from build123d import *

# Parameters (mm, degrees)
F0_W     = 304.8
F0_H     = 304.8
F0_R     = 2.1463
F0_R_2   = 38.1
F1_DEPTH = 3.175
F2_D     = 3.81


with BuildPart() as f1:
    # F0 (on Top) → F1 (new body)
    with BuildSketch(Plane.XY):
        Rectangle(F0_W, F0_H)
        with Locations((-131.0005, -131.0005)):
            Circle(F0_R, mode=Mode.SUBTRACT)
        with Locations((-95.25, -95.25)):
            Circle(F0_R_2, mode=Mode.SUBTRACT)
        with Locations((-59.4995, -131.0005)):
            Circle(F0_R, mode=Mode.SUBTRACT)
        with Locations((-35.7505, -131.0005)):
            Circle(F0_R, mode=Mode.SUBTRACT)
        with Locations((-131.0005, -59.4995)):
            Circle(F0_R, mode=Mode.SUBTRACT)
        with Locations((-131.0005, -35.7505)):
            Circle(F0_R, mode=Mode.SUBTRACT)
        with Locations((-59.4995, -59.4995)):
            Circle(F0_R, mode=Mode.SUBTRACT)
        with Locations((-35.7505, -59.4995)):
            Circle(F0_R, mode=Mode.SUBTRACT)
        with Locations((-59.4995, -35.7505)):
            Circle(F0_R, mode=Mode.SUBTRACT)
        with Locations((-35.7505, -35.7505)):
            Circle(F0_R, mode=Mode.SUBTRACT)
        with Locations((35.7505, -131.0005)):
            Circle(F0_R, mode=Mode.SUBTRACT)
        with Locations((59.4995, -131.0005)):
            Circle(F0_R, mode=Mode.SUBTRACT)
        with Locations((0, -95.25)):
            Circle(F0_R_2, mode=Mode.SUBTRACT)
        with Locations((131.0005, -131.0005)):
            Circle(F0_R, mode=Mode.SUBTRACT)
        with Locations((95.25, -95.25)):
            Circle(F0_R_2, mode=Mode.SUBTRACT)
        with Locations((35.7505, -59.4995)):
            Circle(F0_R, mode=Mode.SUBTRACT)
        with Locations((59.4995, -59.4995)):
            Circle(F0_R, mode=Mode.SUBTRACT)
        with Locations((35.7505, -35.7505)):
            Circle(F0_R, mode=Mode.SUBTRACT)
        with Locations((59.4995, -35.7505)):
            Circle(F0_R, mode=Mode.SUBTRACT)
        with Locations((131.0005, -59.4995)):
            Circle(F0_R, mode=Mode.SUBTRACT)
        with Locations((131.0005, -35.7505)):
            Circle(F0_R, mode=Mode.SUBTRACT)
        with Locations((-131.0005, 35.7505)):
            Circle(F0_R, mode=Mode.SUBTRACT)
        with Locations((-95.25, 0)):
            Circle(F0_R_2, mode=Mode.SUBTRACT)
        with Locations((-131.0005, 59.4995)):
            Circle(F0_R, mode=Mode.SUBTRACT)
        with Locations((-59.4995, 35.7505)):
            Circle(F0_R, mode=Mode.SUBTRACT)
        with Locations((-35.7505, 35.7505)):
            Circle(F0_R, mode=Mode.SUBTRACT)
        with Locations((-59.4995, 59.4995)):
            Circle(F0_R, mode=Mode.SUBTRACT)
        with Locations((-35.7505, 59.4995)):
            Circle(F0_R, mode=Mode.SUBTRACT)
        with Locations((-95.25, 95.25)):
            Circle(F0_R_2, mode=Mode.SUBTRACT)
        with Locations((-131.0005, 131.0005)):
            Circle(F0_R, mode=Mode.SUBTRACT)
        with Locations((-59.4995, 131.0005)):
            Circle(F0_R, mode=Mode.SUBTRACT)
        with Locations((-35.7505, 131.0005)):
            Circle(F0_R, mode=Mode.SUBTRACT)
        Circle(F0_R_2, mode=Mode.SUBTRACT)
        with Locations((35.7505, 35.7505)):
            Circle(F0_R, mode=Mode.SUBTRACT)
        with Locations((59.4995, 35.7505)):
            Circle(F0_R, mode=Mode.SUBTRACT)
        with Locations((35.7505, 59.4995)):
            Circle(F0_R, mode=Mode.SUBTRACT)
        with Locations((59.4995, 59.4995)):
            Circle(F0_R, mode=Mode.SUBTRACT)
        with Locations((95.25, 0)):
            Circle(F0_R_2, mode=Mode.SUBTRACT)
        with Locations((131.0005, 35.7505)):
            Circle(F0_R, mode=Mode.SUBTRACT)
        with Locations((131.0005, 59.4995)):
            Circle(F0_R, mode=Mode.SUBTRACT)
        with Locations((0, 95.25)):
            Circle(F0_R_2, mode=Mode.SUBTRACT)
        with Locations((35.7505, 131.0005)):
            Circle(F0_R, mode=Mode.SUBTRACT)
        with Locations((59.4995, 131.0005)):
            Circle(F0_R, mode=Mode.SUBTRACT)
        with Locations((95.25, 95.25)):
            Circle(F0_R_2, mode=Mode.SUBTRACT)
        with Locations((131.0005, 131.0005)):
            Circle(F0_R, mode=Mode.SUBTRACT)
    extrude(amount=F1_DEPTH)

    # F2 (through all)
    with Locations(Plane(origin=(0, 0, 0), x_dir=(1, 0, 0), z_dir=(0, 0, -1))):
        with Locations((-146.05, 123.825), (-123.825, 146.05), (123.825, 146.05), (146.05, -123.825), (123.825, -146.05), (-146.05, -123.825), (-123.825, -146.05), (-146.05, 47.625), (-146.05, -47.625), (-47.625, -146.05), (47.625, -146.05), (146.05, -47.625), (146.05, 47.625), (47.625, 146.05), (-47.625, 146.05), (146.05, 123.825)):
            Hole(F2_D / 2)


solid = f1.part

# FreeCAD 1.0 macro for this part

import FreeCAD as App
import Part
import Sketcher
from FreeCAD import Vector
Q = App.Units.Quantity


def add_polygon(sketch, points):
    """Adds a closed chain of lines whose ends are joined by coincident constraints."""
    first, n = sketch.GeometryCount, len(points)
    for a, b in zip(points, points[1:] + points[:1]):
        sketch.addGeometry(Part.LineSegment(App.Vector(*a, 0), App.Vector(*b, 0)), False)
    for i in range(n):
        sketch.addConstraint(Sketcher.Constraint("Coincident", first + i, 2, first + (i + 1) % n, 1))

doc = App.newDocument("Part")
body = doc.addObject("PartDesign::Body", "Body")

# Sketch on XY plane
sketch1 = body.newObject("Sketcher::SketchObject", "Sketch")
sketch1.AttachmentSupport = (doc.getObject("XY_Plane"), [""])
sketch1.MapMode = "FlatFace"
add_polygon(sketch1, [(-152.4, 152.4), (-152.4, -152.4), (152.4, -152.4), (152.4, 152.4)])  # lines 0-3
sketch1.addGeometry(Part.Circle(Vector(-131, -131, 0), Vector(0, 0, 1), 2.1), False)  # 4
sketch1.addGeometry(Part.Circle(Vector(-95.2, -95.2, 0), Vector(0, 0, 1), 38.1), False)  # 5
sketch1.addGeometry(Part.Circle(Vector(-59.5, -131, 0), Vector(0, 0, 1), 2.1), False)  # 6
sketch1.addGeometry(Part.Circle(Vector(-35.8, -131, 0), Vector(0, 0, 1), 2.1), False)  # 7
sketch1.addGeometry(Part.Circle(Vector(-131, -59.5, 0), Vector(0, 0, 1), 2.1), False)  # 8
sketch1.addGeometry(Part.Circle(Vector(-131, -35.8, 0), Vector(0, 0, 1), 2.1), False)  # 9
sketch1.addGeometry(Part.Circle(Vector(-59.5, -59.5, 0), Vector(0, 0, 1), 2.1), False)  # 10
sketch1.addGeometry(Part.Circle(Vector(-35.8, -59.5, 0), Vector(0, 0, 1), 2.1), False)  # 11
sketch1.addGeometry(Part.Circle(Vector(-59.5, -35.8, 0), Vector(0, 0, 1), 2.1), False)  # 12
sketch1.addGeometry(Part.Circle(Vector(-35.8, -35.8, 0), Vector(0, 0, 1), 2.1), False)  # 13
sketch1.addGeometry(Part.Circle(Vector(35.8, -131, 0), Vector(0, 0, 1), 2.1), False)  # 14
sketch1.addGeometry(Part.Circle(Vector(59.5, -131, 0), Vector(0, 0, 1), 2.1), False)  # 15
sketch1.addGeometry(Part.Circle(Vector(0, -95.2, 0), Vector(0, 0, 1), 38.1), False)  # 16
sketch1.addGeometry(Part.Circle(Vector(131, -131, 0), Vector(0, 0, 1), 2.1), False)  # 17
sketch1.addGeometry(Part.Circle(Vector(95.2, -95.2, 0), Vector(0, 0, 1), 38.1), False)  # 18
sketch1.addGeometry(Part.Circle(Vector(35.8, -59.5, 0), Vector(0, 0, 1), 2.1), False)  # 19
sketch1.addGeometry(Part.Circle(Vector(59.5, -59.5, 0), Vector(0, 0, 1), 2.1), False)  # 20
sketch1.addGeometry(Part.Circle(Vector(35.8, -35.8, 0), Vector(0, 0, 1), 2.1), False)  # 21
sketch1.addGeometry(Part.Circle(Vector(59.5, -35.8, 0), Vector(0, 0, 1), 2.1), False)  # 22
sketch1.addGeometry(Part.Circle(Vector(131, -59.5, 0), Vector(0, 0, 1), 2.1), False)  # 23
sketch1.addGeometry(Part.Circle(Vector(131, -35.8, 0), Vector(0, 0, 1), 2.1), False)  # 24
sketch1.addGeometry(Part.Circle(Vector(-95.2, 0, 0), Vector(0, 0, 1), 38.1), False)  # 25
sketch1.addGeometry(Part.Circle(Vector(-131, 35.8, 0), Vector(0, 0, 1), 2.1), False)  # 26
sketch1.addGeometry(Part.Circle(Vector(-131, 59.5, 0), Vector(0, 0, 1), 2.1), False)  # 27
sketch1.addGeometry(Part.Circle(Vector(-59.5, 35.8, 0), Vector(0, 0, 1), 2.1), False)  # 28
sketch1.addGeometry(Part.Circle(Vector(-35.8, 35.8, 0), Vector(0, 0, 1), 2.1), False)  # 29
sketch1.addGeometry(Part.Circle(Vector(-59.5, 59.5, 0), Vector(0, 0, 1), 2.1), False)  # 30
sketch1.addGeometry(Part.Circle(Vector(-35.8, 59.5, 0), Vector(0, 0, 1), 2.1), False)  # 31
sketch1.addGeometry(Part.Circle(Vector(-95.2, 95.2, 0), Vector(0, 0, 1), 38.1), False)  # 32
sketch1.addGeometry(Part.Circle(Vector(-131, 131, 0), Vector(0, 0, 1), 2.1), False)  # 33
sketch1.addGeometry(Part.Circle(Vector(-59.5, 131, 0), Vector(0, 0, 1), 2.1), False)  # 34
sketch1.addGeometry(Part.Circle(Vector(-35.8, 131, 0), Vector(0, 0, 1), 2.1), False)  # 35
sketch1.addGeometry(Part.Circle(Vector(0, 0, 0), Vector(0, 0, 1), 38.1), False)  # 36
sketch1.addGeometry(Part.Circle(Vector(35.8, 35.8, 0), Vector(0, 0, 1), 2.1), False)  # 37
sketch1.addGeometry(Part.Circle(Vector(59.5, 35.8, 0), Vector(0, 0, 1), 2.1), False)  # 38
sketch1.addGeometry(Part.Circle(Vector(35.8, 59.5, 0), Vector(0, 0, 1), 2.1), False)  # 39
sketch1.addGeometry(Part.Circle(Vector(59.5, 59.5, 0), Vector(0, 0, 1), 2.1), False)  # 40
sketch1.addGeometry(Part.Circle(Vector(95.2, 0, 0), Vector(0, 0, 1), 38.1), False)  # 41
sketch1.addGeometry(Part.Circle(Vector(131, 35.8, 0), Vector(0, 0, 1), 2.1), False)  # 42
sketch1.addGeometry(Part.Circle(Vector(131, 59.5, 0), Vector(0, 0, 1), 2.1), False)  # 43
sketch1.addGeometry(Part.Circle(Vector(0, 95.2, 0), Vector(0, 0, 1), 38.1), False)  # 44
sketch1.addGeometry(Part.Circle(Vector(35.8, 131, 0), Vector(0, 0, 1), 2.1), False)  # 45
sketch1.addGeometry(Part.Circle(Vector(59.5, 131, 0), Vector(0, 0, 1), 2.1), False)  # 46
sketch1.addGeometry(Part.Circle(Vector(95.2, 95.2, 0), Vector(0, 0, 1), 38.1), False)  # 47
sketch1.addGeometry(Part.Circle(Vector(131, 131, 0), Vector(0, 0, 1), 2.1), False)  # 48
sketch1.addConstraint([
    Sketcher.Constraint("Vertical", 0),
    Sketcher.Constraint("Horizontal", 1),
    Sketcher.Constraint("Vertical", 2),
    Sketcher.Constraint("Horizontal", 3),
    Sketcher.Constraint("Coincident", 36, 3, -1, 1),
    Sketcher.Constraint("Equal", 4, 6),
    Sketcher.Constraint("Equal", 6, 7),
    Sketcher.Constraint("Equal", 7, 8),
    Sketcher.Constraint("Equal", 8, 9),
    Sketcher.Constraint("Equal", 9, 10),
    Sketcher.Constraint("Equal", 10, 11),
    Sketcher.Constraint("Equal", 11, 12),
    Sketcher.Constraint("Equal", 12, 13),
    Sketcher.Constraint("Equal", 13, 14),
    Sketcher.Constraint("Equal", 14, 15),
    Sketcher.Constraint("Equal", 5, 16),
    Sketcher.Constraint("Equal", 15, 17),
    Sketcher.Constraint("Equal", 16, 18),
    Sketcher.Constraint("Equal", 17, 19),
    Sketcher.Constraint("Equal", 19, 20),
    Sketcher.Constraint("Equal", 20, 21),
    Sketcher.Constraint("Equal", 21, 22),
    Sketcher.Constraint("Equal", 22, 23),
    Sketcher.Constraint("Equal", 23, 24),
    Sketcher.Constraint("Equal", 18, 25),
    Sketcher.Constraint("Equal", 24, 26),
    Sketcher.Constraint("Equal", 26, 27),
    Sketcher.Constraint("Equal", 27, 28),
    Sketcher.Constraint("Equal", 28, 29),
    Sketcher.Constraint("Equal", 29, 30),
    Sketcher.Constraint("Equal", 30, 31),
    Sketcher.Constraint("Equal", 25, 32),
    Sketcher.Constraint("Equal", 31, 33),
    Sketcher.Constraint("Equal", 33, 34),
    Sketcher.Constraint("Equal", 34, 35),
    Sketcher.Constraint("Equal", 32, 36),
    Sketcher.Constraint("Equal", 35, 37),
    Sketcher.Constraint("Equal", 37, 38),
    Sketcher.Constraint("Equal", 38, 39),
    Sketcher.Constraint("Equal", 39, 40),
    Sketcher.Constraint("Equal", 36, 41),
    Sketcher.Constraint("Equal", 40, 42),
    Sketcher.Constraint("Equal", 42, 43),
    Sketcher.Constraint("Equal", 41, 44),
    Sketcher.Constraint("Equal", 43, 45),
    Sketcher.Constraint("Equal", 45, 46),
    Sketcher.Constraint("Equal", 44, 47),
    Sketcher.Constraint("Equal", 46, 48),
    Sketcher.Constraint("Symmetric", 24, 3, 26, 3, -1, 1),
    Sketcher.Constraint("Symmetric", 23, 3, 27, 3, -1, 1),
    Sketcher.Constraint("Symmetric", 22, 3, 28, 3, -1, 1),
    Sketcher.Constraint("Symmetric", 21, 3, 29, 3, -1, 1),
    Sketcher.Constraint("Symmetric", 20, 3, 30, 3, -1, 1),
    Sketcher.Constraint("Symmetric", 19, 3, 31, 3, -1, 1),
    Sketcher.Constraint("Symmetric", 18, 3, 32, 3, -1, 1),
    Sketcher.Constraint("Symmetric", 17, 3, 33, 3, -1, 1),
    Sketcher.Constraint("Symmetric", 15, 3, 34, 3, -1, 1),
    Sketcher.Constraint("Symmetric", 14, 3, 35, 3, -1, 1),
    Sketcher.Constraint("Symmetric", 13, 3, 37, 3, -1, 1),
    Sketcher.Constraint("Symmetric", 12, 3, 38, 3, -1, 1),
    Sketcher.Constraint("Symmetric", 11, 3, 39, 3, -1, 1),
    Sketcher.Constraint("Symmetric", 10, 3, 40, 3, -1, 1),
    Sketcher.Constraint("Symmetric", 25, 3, 41, 3, -1, 1),
    Sketcher.Constraint("Symmetric", 9, 3, 42, 3, -1, 1),
    Sketcher.Constraint("Symmetric", 8, 3, 43, 3, -1, 1),
    Sketcher.Constraint("Symmetric", 16, 3, 44, 3, -1, 1),
    Sketcher.Constraint("Symmetric", 7, 3, 45, 3, -1, 1),
    Sketcher.Constraint("Symmetric", 6, 3, 46, 3, -1, 1),
    Sketcher.Constraint("Symmetric", 5, 3, 47, 3, -1, 1),
    Sketcher.Constraint("Symmetric", 4, 3, 48, 3, -1, 1),
    Sketcher.Constraint("Symmetric", 0, 2, 2, 2, -1, 1),
    Sketcher.Constraint("Symmetric", 7, 3, 14, 3, -2),
    Sketcher.Constraint("Symmetric", 6, 3, 15, 3, -2),
    Sketcher.Constraint("Symmetric", 4, 3, 17, 3, -2),
    Sketcher.Constraint("Symmetric", 5, 3, 18, 3, -2),
    Sketcher.Constraint("Symmetric", 11, 3, 19, 3, -2),
    Sketcher.Constraint("Symmetric", 10, 3, 20, 3, -2),
    Sketcher.Constraint("Symmetric", 13, 3, 21, 3, -2),
    Sketcher.Constraint("Symmetric", 12, 3, 22, 3, -2),
    Sketcher.Constraint("Symmetric", 8, 3, 23, 3, -2),
    Sketcher.Constraint("Symmetric", 9, 3, 24, 3, -2),
    Sketcher.Constraint("PointOnObject", 16, 3, -2),
    Sketcher.Constraint("PointOnObject", 25, 3, -1),
    Sketcher.Constraint("Horizontal", 4, 3, 6, 3),
    Sketcher.Constraint("Horizontal", 6, 3, 7, 3),
    Sketcher.Constraint("Horizontal", 8, 3, 10, 3),
    Sketcher.Constraint("Horizontal", 10, 3, 11, 3),
    Sketcher.Constraint("Horizontal", 9, 3, 12, 3),
    Sketcher.Constraint("Horizontal", 12, 3, 13, 3),
    Sketcher.Constraint("Horizontal", 5, 3, 16, 3),
    Sketcher.Constraint("Vertical", 4, 3, 8, 3),
    Sketcher.Constraint("Vertical", 8, 3, 9, 3),
    Sketcher.Constraint("Vertical", 6, 3, 10, 3),
    Sketcher.Constraint("Vertical", 7, 3, 11, 3),
    Sketcher.Constraint("Vertical", 10, 3, 12, 3),
    Sketcher.Constraint("Vertical", 11, 3, 13, 3),
    Sketcher.Constraint("Vertical", 5, 3, 25, 3),
    Sketcher.Constraint("Equal", 3, 0),
    Sketcher.Constraint("Diameter", 5, Q("3 in")),
    Sketcher.Constraint("DistanceX", 1, 1, 1, 2, Q("12 in")),
    Sketcher.Constraint("Diameter", 4, Q("0.169 in")),
    Sketcher.Constraint("DistanceX", 5, 3, -1, 1, Q("3.75 in")),
    Sketcher.Constraint("DistanceY", 5, 3, -1, 1, Q("3.75 in")),
    Sketcher.Constraint("DistanceX", 4, 3, 7, 3, Q("3.75 in")),
    Sketcher.Constraint("DistanceY", 4, 3, 9, 3, Q("3.75 in")),
    Sketcher.Constraint("DistanceX", 6, 3, 14, 3, Q("3.75 in")),
    Sketcher.Constraint("DistanceY", 8, 3, 26, 3, Q("3.75 in")),
    Sketcher.Constraint("DistanceX", 4, 3, 6, 3, Q("2.815 in")),
    Sketcher.Constraint("DistanceY", 4, 3, 8, 3, Q("2.815 in")),
])
pad1 = body.newObject("PartDesign::Pad", "Pad")
pad1.Profile = sketch1
pad1.Length = Q("0.125 in")

# Sketch on XY plane
sketch2 = body.newObject("Sketcher::SketchObject", "Sketch001")
sketch2.AttachmentSupport = (doc.getObject("XY_Plane"), [""])
sketch2.MapMode = "FlatFace"
sketch2.addGeometry([
    Part.Circle(Vector(-146.1, -123.8, 0), Vector(0, 0, 1), 1.9),  # 0
    Part.Circle(Vector(-123.8, -146.1, 0), Vector(0, 0, 1), 1.9),  # 1
    Part.Circle(Vector(123.8, -146.1, 0), Vector(0, 0, 1), 1.9),  # 2
    Part.Circle(Vector(146.1, 123.8, 0), Vector(0, 0, 1), 1.9),  # 3
    Part.Circle(Vector(123.8, 146.1, 0), Vector(0, 0, 1), 1.9),  # 4
    Part.Circle(Vector(-146.1, 123.8, 0), Vector(0, 0, 1), 1.9),  # 5
    Part.Circle(Vector(-123.8, 146.1, 0), Vector(0, 0, 1), 1.9),  # 6
    Part.Circle(Vector(-146.1, -47.6, 0), Vector(0, 0, 1), 1.9),  # 7
    Part.Circle(Vector(-146.1, 47.6, 0), Vector(0, 0, 1), 1.9),  # 8
    Part.Circle(Vector(-47.6, 146.1, 0), Vector(0, 0, 1), 1.9),  # 9
    Part.Circle(Vector(47.6, 146.1, 0), Vector(0, 0, 1), 1.9),  # 10
    Part.Circle(Vector(146.1, 47.6, 0), Vector(0, 0, 1), 1.9),  # 11
    Part.Circle(Vector(146.1, -47.6, 0), Vector(0, 0, 1), 1.9),  # 12
    Part.Circle(Vector(47.6, -146.1, 0), Vector(0, 0, 1), 1.9),  # 13
    Part.Circle(Vector(-47.6, -146.1, 0), Vector(0, 0, 1), 1.9),  # 14
    Part.Circle(Vector(146.1, -123.8, 0), Vector(0, 0, 1), 1.9),  # 15
], False)
sketch2.addConstraint([
    Sketcher.Constraint("Equal", 0, 1),
    Sketcher.Constraint("Equal", 1, 2),
    Sketcher.Constraint("Equal", 2, 3),
    Sketcher.Constraint("Equal", 3, 4),
    Sketcher.Constraint("Equal", 4, 5),
    Sketcher.Constraint("Equal", 5, 6),
    Sketcher.Constraint("Equal", 6, 7),
    Sketcher.Constraint("Equal", 7, 8),
    Sketcher.Constraint("Equal", 8, 9),
    Sketcher.Constraint("Equal", 9, 10),
    Sketcher.Constraint("Equal", 10, 11),
    Sketcher.Constraint("Equal", 11, 12),
    Sketcher.Constraint("Equal", 12, 13),
    Sketcher.Constraint("Equal", 13, 14),
    Sketcher.Constraint("Equal", 14, 15),
    Sketcher.Constraint("Symmetric", 0, 3, 3, 3, -1, 1),
    Sketcher.Constraint("Symmetric", 1, 3, 4, 3, -1, 1),
    Sketcher.Constraint("Symmetric", 2, 3, 6, 3, -1, 1),
    Sketcher.Constraint("Symmetric", 7, 3, 11, 3, -1, 1),
    Sketcher.Constraint("Symmetric", 8, 3, 12, 3, -1, 1),
    Sketcher.Constraint("Symmetric", 9, 3, 13, 3, -1, 1),
    Sketcher.Constraint("Symmetric", 10, 3, 14, 3, -1, 1),
    Sketcher.Constraint("Symmetric", 5, 3, 15, 3, -1, 1),
    Sketcher.Constraint("Symmetric", 1, 3, 2, 3, -2),
    Sketcher.Constraint("Symmetric", 3, 3, 5, 3, -2),
    Sketcher.Constraint("Symmetric", 9, 3, 10, 3, -2),
    Sketcher.Constraint("Symmetric", 8, 3, 11, 3, -2),
    Sketcher.Constraint("Horizontal", 6, 3, 9, 3),
    Sketcher.Constraint("Vertical", 5, 3, 7, 3),
    Sketcher.Constraint("Diameter", 0, Q("0.15 in")),
    Sketcher.Constraint("DistanceY", 0, 3, 7, 3, Q("3 in")),
    Sketcher.Constraint("DistanceX", 6, 3, 9, 3, Q("3 in")),
    Sketcher.Constraint("DistanceX", 0, 3, 3, 3, Q("11.5 in")),
    Sketcher.Constraint("DistanceY", 2, 3, 4, 3, Q("11.5 in")),
    Sketcher.Constraint("DistanceX", 1, 3, 2, 3, Q("9.75 in")),
    Sketcher.Constraint("DistanceY", 0, 3, 3, 3, Q("9.75 in")),
])
doc.recompute()
hole = body.newObject("PartDesign::Hole", "Hole")
hole.Profile = sketch2
hole.ThreadType = "None"
hole.Diameter = Q("0.15 in")
hole.DepthType = "ThroughAll"
hole.Reversed = True

doc.recompute()
